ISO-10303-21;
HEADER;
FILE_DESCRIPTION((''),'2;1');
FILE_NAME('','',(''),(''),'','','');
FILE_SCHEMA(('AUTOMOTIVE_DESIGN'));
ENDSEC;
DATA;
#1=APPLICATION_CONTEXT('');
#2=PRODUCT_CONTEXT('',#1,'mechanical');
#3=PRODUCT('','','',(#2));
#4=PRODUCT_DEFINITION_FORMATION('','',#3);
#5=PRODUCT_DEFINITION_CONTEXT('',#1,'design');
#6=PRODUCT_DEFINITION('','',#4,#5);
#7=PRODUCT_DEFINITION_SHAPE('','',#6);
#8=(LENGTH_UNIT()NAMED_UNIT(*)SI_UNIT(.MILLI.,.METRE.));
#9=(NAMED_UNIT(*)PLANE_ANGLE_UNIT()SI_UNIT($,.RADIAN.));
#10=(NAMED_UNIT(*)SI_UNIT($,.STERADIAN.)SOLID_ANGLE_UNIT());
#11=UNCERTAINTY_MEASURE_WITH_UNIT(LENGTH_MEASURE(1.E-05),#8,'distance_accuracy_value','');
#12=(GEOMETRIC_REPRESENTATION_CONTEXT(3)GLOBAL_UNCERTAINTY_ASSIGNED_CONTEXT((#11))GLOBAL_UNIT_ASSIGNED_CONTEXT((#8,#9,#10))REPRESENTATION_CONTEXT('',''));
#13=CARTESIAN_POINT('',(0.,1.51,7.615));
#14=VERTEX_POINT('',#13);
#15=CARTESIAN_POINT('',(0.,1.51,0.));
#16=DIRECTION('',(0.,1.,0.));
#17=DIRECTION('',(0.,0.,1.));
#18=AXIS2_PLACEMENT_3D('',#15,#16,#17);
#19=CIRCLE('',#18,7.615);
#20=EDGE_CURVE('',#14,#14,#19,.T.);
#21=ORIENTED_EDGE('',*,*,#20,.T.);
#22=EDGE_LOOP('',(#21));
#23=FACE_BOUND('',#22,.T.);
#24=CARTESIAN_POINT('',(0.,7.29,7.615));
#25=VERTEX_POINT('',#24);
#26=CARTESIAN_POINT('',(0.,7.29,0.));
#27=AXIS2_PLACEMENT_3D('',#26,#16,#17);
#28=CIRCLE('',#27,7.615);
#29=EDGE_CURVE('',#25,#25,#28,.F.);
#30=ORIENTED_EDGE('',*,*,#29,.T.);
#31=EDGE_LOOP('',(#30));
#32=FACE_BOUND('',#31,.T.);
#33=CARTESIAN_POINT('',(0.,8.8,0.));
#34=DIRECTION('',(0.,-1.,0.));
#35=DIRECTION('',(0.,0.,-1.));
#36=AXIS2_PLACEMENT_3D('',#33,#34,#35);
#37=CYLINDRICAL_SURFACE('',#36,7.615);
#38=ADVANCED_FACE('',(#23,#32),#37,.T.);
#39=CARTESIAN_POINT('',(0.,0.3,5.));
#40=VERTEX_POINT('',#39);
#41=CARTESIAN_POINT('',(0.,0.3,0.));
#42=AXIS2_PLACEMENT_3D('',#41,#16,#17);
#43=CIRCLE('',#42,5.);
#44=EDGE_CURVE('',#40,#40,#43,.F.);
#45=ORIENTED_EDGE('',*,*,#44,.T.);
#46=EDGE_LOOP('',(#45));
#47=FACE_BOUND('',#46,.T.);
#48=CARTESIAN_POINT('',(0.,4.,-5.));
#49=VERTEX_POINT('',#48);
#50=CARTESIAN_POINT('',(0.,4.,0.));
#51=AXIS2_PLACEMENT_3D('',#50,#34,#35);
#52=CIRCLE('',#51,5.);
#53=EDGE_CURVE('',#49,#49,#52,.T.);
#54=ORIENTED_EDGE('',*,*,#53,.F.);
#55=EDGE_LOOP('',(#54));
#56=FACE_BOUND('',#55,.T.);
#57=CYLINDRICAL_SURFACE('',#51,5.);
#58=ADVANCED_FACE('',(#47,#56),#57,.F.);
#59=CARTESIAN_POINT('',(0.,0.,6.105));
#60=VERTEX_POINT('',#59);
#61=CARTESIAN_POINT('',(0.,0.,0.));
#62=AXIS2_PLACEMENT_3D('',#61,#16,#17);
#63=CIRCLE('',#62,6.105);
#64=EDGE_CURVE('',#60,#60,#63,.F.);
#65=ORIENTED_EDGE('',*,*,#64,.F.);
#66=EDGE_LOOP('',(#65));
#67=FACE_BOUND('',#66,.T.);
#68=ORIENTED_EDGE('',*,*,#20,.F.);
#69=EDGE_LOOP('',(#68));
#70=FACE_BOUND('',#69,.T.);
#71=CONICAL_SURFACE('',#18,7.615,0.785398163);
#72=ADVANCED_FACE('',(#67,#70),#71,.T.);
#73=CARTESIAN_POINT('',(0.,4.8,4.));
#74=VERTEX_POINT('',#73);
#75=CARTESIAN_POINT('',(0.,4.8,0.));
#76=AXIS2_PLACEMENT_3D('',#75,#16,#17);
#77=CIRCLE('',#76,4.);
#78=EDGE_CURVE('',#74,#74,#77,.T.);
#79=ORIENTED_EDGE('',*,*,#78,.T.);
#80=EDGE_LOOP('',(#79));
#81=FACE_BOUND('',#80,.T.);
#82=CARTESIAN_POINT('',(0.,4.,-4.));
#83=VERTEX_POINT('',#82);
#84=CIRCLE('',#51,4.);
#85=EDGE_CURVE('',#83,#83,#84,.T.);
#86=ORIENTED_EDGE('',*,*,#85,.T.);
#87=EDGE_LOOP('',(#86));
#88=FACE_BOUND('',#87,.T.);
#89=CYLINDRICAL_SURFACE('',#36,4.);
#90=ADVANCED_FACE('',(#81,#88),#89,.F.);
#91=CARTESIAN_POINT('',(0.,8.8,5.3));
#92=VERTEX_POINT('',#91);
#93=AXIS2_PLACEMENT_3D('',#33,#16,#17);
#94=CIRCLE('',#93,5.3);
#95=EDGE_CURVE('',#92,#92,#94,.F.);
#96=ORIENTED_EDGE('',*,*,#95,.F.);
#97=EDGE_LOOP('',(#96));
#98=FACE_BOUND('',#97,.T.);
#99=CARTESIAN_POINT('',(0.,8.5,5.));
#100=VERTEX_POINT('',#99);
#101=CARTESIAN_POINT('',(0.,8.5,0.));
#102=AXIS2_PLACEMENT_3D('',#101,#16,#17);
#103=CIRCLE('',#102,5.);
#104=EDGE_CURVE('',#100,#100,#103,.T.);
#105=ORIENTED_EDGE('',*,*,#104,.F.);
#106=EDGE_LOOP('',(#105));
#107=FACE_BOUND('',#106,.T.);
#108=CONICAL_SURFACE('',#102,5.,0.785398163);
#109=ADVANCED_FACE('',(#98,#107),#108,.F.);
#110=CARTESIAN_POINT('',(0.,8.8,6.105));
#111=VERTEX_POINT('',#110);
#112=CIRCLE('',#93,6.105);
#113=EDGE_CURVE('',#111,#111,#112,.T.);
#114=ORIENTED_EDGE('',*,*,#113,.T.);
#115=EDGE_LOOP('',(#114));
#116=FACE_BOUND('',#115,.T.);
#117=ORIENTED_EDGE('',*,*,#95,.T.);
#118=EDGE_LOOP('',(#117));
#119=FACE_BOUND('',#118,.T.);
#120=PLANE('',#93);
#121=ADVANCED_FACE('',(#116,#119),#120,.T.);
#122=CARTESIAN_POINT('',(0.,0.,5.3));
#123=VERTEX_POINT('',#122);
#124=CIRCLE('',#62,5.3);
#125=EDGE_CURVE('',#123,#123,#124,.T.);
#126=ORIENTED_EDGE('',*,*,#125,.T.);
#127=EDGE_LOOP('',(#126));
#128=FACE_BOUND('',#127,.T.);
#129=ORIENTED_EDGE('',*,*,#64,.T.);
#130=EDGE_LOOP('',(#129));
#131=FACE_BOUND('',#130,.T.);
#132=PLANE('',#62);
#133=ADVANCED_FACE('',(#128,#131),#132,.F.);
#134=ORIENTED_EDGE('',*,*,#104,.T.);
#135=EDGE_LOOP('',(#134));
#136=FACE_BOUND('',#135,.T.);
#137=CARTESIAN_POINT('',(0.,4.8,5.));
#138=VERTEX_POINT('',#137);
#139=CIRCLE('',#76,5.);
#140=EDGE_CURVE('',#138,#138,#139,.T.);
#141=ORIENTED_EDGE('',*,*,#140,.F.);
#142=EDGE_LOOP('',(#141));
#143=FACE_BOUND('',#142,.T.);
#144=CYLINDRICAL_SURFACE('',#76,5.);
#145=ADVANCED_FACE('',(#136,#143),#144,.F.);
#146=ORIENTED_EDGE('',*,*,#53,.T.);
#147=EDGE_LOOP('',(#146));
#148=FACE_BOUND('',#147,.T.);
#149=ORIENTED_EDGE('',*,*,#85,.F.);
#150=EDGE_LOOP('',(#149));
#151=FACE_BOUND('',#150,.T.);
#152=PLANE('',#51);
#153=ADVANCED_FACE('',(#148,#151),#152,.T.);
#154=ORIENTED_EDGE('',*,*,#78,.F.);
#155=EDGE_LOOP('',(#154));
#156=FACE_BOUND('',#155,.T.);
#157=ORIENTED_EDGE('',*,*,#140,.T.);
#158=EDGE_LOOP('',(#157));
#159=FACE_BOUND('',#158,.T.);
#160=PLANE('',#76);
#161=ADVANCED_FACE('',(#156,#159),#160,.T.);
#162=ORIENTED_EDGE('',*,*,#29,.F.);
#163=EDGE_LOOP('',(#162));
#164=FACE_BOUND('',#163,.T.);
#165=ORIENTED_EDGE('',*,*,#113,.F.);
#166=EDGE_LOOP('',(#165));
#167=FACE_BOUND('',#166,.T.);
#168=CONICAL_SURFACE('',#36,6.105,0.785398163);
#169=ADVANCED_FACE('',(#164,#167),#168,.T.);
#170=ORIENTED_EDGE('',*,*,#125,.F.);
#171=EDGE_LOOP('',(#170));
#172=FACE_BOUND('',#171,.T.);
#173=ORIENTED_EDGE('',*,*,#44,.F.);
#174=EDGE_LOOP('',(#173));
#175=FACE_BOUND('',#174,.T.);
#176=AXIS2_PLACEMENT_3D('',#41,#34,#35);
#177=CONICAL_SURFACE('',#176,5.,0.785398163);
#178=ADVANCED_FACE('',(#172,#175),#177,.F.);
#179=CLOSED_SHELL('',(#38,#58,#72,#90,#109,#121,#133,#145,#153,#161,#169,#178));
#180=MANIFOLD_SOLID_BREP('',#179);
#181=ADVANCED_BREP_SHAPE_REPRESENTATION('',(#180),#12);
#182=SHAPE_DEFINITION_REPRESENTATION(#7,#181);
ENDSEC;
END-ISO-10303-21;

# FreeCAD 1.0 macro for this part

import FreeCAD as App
import Part
import Sketcher
from FreeCAD import Vector
Q = App.Units.Quantity


def edges_at(feature, points):
    """Names of the edges that pass closest to the given points."""
    edges = feature.Shape.Edges
    near = lambda p: min(range(len(edges)), key=lambda i: edges[i].distToShape(Part.Vertex(*p))[0])
    return sorted({f"Edge{near(p) + 1}" for p in points})

doc = App.newDocument("Part")
params = doc.addObject("Spreadsheet::Sheet", "Params")
for row, (alias, value) in enumerate([
    ("sketch1_diameter", "8 mm"),
    ("sketch1_diameter2", "15.23 mm"),
    ("pad1_length", "8.8 mm"),
    ("sketch2_diameter", "10 mm"),
    ("pocket1_length", "4 mm"),
    ("sketch3_diameter", "10 mm"),
    ("pocket2_length", "4 mm"),
    ("chamfer_size", "0.3 mm"),
    ("chamfer2_size", "1.51 mm"),
], start=1):
    params.set(f"A{row}", alias)
    params.set(f"B{row}", "=" + value)
    params.setAlias(f"B{row}", alias)

body = doc.addObject("PartDesign::Body", "Body")

# Sketch on XZ plane
sketch1 = doc.addObject("Sketcher::SketchObject", "Sketch")
body.addObject(sketch1)
sketch1.AttachmentSupport = (doc.XZ_Plane, [""])
sketch1.MapMode = "FlatFace"
sketch1.addGeometry([
    Part.Circle(Vector(0, 0, 0), Vector(0, 0, 1), 7.615),
    Part.Circle(Vector(0, 0, 0), Vector(0, 0, 1), 4),
], False)
sketch1.addConstraint([
    Sketcher.Constraint("Coincident", 0, 3, -1, 1),
    Sketcher.Constraint("Coincident", 1, 3, -1, 1),
    Sketcher.Constraint("Diameter", 1, Q("8 mm")),
    Sketcher.Constraint("Diameter", 0, Q("15.23 mm")),
])
sketch1.setExpression("Constraints[2]", "Params.sketch1_diameter")
sketch1.setExpression("Constraints[3]", "Params.sketch1_diameter2")
pad1 = doc.addObject("PartDesign::Pad", "Pad")
body.addObject(pad1)
pad1.Profile = sketch1
pad1.setExpression("Length", "Params.pad1_length")
pad1.Reversed = True

# Sketch on XZ plane
sketch2 = doc.addObject("Sketcher::SketchObject", "Sketch001")
body.addObject(sketch2)
sketch2.AttachmentSupport = (doc.XZ_Plane, [""])
sketch2.MapMode = "FlatFace"
sketch2.AttachmentOffset = App.Placement(Vector(0, 0, -8.8), App.Rotation())
sketch2.addGeometry(Part.Circle(Vector(0, 0, 0), Vector(0, 0, 1), 5), False)
sketch2.addConstraint([
    Sketcher.Constraint("Coincident", 0, 3, -1, 1),
    Sketcher.Constraint("Diameter", 0, Q("10 mm")),
])
sketch2.setExpression("Constraints[1]", "Params.sketch2_diameter")
pocket1 = doc.addObject("PartDesign::Pocket", "Pocket")
body.addObject(pocket1)
pocket1.Profile = sketch2
pocket1.setExpression("Length", "Params.pocket1_length")
pocket1.Reversed = True

# Sketch on XZ plane
sketch3 = doc.addObject("Sketcher::SketchObject", "Sketch002")
body.addObject(sketch3)
sketch3.AttachmentSupport = (doc.XZ_Plane, [""])
sketch3.MapMode = "FlatFace"
sketch3.addGeometry(Part.Circle(Vector(0, 0, 0), Vector(0, 0, 1), 5), False)
sketch3.addConstraint([
    Sketcher.Constraint("Coincident", 0, 3, -1, 1),
    Sketcher.Constraint("Diameter", 0, Q("10 mm")),
])
sketch3.setExpression("Constraints[1]", "Params.sketch3_diameter")
pocket2 = doc.addObject("PartDesign::Pocket", "Pocket001")
body.addObject(pocket2)
pocket2.Profile = sketch3
pocket2.setExpression("Length", "Params.pocket2_length")
doc.recompute()

chamfer = doc.addObject("PartDesign::Chamfer", "Chamfer")
body.addObject(chamfer)
chamfer.Base = (pocket2, edges_at(pocket2, [(-5, 8.8, 0), (-5, 0, 0)]))
chamfer.setExpression("Size", "Params.chamfer_size")
doc.recompute()

chamfer2 = doc.addObject("PartDesign::Chamfer", "Chamfer001")
body.addObject(chamfer2)
chamfer2.Base = (chamfer, edges_at(chamfer, [(-7.615, 0, 0), (-7.615, 8.8, 0)]))
chamfer2.setExpression("Size", "Params.chamfer2_size")

doc.recompute()
